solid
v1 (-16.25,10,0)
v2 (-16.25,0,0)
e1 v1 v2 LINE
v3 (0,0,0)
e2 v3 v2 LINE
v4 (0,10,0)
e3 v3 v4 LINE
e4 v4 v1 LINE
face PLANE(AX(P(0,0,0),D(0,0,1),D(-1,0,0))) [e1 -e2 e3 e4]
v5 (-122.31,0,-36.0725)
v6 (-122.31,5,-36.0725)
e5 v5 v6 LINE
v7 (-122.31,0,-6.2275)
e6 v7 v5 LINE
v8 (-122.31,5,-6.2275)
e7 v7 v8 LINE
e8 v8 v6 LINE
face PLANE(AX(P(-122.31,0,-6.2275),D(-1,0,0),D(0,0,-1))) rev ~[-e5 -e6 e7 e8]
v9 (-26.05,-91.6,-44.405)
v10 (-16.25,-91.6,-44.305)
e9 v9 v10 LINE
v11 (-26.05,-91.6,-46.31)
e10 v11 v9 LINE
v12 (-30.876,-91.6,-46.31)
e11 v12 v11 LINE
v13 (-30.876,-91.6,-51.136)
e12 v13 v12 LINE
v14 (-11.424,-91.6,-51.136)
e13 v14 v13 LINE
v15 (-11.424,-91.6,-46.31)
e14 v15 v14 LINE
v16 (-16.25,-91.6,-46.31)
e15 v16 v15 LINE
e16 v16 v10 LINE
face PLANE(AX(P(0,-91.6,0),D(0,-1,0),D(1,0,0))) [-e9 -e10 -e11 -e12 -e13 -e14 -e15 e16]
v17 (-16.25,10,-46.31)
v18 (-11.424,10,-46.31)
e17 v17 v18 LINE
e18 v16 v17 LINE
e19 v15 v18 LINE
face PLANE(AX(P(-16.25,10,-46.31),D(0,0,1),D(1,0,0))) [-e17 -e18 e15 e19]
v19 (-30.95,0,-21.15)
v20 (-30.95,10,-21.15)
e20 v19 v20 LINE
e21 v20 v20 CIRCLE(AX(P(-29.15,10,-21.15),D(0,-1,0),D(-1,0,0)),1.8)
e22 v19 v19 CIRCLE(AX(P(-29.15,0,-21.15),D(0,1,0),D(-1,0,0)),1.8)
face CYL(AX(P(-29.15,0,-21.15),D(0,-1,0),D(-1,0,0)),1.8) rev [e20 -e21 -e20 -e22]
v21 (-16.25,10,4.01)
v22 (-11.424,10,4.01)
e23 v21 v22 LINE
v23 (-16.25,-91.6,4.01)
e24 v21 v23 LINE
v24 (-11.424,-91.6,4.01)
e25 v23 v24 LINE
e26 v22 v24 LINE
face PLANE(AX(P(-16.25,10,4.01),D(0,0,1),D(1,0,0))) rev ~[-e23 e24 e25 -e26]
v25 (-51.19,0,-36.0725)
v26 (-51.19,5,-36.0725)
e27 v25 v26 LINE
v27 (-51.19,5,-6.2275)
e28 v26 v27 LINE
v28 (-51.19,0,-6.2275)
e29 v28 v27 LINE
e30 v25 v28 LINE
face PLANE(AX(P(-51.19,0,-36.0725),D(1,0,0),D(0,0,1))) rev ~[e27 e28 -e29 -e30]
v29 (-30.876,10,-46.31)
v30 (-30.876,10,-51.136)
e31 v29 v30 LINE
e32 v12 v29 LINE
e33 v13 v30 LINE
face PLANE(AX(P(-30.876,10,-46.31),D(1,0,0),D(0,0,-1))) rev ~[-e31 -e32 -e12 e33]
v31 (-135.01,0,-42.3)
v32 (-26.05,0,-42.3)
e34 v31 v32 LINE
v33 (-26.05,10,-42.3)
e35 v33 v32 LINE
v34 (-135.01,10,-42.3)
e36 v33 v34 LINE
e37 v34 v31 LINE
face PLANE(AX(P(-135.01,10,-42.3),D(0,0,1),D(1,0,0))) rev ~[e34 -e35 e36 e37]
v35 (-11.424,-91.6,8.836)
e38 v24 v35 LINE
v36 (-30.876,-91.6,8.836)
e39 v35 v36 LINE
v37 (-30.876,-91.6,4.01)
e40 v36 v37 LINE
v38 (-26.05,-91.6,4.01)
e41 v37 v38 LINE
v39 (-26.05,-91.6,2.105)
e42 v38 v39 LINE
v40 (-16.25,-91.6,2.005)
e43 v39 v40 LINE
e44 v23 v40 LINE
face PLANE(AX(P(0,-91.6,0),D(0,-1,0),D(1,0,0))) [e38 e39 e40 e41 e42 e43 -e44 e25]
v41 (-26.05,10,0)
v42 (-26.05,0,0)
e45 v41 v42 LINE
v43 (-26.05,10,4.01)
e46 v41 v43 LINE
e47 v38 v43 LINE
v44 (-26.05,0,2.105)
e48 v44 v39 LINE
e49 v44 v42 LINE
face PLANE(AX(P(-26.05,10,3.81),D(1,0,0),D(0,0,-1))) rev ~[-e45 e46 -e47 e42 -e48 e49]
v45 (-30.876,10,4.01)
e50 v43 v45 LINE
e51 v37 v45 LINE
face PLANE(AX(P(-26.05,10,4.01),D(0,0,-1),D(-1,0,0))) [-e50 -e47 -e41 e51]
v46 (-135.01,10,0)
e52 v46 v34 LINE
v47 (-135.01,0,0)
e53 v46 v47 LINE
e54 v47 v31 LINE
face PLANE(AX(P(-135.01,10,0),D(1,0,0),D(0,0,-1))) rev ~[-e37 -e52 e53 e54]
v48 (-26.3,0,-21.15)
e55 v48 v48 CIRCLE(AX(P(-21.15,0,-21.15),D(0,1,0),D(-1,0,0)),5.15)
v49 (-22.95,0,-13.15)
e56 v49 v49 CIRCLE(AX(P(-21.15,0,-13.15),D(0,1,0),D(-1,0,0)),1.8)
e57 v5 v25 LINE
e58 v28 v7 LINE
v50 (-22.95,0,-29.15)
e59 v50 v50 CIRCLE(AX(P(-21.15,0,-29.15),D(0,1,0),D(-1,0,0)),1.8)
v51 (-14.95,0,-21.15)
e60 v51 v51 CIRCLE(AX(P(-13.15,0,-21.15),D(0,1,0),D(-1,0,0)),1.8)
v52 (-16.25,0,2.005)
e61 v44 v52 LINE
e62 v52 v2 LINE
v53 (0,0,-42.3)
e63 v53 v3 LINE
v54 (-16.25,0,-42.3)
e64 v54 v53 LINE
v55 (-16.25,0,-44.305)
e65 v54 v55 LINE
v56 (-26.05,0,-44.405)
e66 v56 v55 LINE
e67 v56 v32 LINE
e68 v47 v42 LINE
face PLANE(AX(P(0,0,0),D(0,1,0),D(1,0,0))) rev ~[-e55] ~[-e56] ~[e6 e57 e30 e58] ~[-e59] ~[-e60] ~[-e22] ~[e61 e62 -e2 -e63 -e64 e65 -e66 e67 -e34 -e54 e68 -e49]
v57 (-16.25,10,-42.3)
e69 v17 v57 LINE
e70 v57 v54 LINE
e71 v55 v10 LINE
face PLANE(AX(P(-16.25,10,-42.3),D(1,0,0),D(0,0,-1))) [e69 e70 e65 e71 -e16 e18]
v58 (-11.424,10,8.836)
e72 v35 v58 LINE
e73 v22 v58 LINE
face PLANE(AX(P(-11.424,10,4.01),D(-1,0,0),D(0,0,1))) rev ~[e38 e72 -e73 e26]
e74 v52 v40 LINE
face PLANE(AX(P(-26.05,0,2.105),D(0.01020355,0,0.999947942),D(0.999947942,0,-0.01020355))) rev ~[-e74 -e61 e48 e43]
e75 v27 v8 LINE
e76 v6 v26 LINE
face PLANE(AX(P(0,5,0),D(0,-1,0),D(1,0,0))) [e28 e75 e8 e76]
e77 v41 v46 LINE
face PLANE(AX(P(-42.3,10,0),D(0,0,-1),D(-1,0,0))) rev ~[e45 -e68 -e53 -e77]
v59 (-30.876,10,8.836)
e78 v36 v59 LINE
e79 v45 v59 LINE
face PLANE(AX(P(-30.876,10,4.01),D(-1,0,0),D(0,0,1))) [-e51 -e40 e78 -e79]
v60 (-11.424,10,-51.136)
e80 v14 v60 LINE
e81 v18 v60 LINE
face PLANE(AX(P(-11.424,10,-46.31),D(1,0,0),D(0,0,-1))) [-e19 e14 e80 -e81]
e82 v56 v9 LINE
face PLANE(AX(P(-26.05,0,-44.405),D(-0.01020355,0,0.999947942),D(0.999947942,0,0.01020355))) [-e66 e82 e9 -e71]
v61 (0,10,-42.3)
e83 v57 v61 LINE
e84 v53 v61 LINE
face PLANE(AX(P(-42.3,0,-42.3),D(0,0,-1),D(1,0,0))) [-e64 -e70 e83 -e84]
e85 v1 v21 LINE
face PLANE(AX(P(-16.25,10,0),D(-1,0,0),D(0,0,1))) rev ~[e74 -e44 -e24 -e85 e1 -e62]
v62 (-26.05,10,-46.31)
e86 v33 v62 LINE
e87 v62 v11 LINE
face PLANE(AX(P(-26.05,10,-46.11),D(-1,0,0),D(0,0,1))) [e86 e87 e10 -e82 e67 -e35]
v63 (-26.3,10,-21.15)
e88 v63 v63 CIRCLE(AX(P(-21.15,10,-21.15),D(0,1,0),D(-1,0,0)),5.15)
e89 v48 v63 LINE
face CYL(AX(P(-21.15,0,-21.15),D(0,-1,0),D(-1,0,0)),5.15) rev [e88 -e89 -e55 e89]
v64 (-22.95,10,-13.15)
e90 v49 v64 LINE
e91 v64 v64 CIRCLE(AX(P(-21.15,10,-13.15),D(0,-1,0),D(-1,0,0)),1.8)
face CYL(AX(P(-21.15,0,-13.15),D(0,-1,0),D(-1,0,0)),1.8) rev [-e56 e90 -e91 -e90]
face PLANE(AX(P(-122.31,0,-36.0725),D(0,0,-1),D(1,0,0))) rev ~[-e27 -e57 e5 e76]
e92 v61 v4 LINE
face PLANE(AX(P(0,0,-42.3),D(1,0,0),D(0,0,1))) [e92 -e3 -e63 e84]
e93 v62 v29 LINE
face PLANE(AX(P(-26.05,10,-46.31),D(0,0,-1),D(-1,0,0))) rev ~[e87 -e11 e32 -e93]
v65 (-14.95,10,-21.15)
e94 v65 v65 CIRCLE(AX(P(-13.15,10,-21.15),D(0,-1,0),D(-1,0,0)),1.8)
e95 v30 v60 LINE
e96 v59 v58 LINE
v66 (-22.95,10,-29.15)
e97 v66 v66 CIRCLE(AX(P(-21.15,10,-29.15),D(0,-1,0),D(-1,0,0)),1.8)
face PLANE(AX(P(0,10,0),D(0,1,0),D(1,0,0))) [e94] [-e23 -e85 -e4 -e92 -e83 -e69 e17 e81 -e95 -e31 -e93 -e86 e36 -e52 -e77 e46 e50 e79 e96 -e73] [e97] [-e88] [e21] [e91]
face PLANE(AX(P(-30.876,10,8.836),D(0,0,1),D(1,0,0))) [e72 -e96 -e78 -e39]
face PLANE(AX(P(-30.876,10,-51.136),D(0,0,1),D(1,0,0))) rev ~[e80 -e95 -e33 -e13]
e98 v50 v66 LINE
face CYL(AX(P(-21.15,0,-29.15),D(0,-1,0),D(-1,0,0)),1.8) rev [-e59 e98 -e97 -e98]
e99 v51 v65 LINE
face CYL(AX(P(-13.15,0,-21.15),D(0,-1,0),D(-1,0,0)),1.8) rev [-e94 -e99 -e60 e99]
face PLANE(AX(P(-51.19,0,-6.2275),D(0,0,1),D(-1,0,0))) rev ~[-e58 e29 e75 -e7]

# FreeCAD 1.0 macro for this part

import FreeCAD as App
import Part
import Sketcher
Q = App.Units.Quantity


def add_polygon(sketch, points):
    """Adds a closed chain of lines whose ends are joined by coincident constraints."""
    first, n = sketch.GeometryCount, len(points)
    for a, b in zip(points, points[1:] + points[:1]):
        sketch.addGeometry(Part.LineSegment(App.Vector(*a, 0), App.Vector(*b, 0)), False)
    for i in range(n):
        sketch.addConstraint(Sketcher.Constraint("Coincident", first + i, 2, first + (i + 1) % n, 1))

doc = App.newDocument("Part")
body = doc.addObject("PartDesign::Body", "Body")

# Sketch on XZ plane
sketch1 = body.newObject("Sketcher::SketchObject", "Sketch")
sketch1.AttachmentSupport = (doc.getObject("XZ_Plane"), [""])
sketch1.MapMode = "FlatFace"
add_polygon(sketch1, [(-42.3, 0), (0, 0), (0, -42.3), (-42.3, -42.3)])  # lines 0-3
sketch1.addGeometry(Part.Circle(App.Vector(-29.1, -21.1, 0), App.Vector(0, 0, 1), 1.8), False)  # 4
sketch1.addGeometry(Part.Circle(App.Vector(-21.1, -13.2, 0), App.Vector(0, 0, 1), 1.8), False)  # 5
sketch1.addGeometry(Part.Circle(App.Vector(-13.2, -21.1, 0), App.Vector(0, 0, 1), 1.8), False)  # 6
sketch1.addGeometry(Part.Circle(App.Vector(-21.1, -29.1, 0), App.Vector(0, 0, 1), 1.8), False)  # 7
sketch1.addGeometry(Part.Circle(App.Vector(-21.1, -21.1, 0), App.Vector(0, 0, 1), 5.2), False)  # 8
sketch1.addConstraint(Sketcher.Constraint("Horizontal", 0))
sketch1.addConstraint(Sketcher.Constraint("Vertical", 1))
sketch1.addConstraint(Sketcher.Constraint("Horizontal", 2))
sketch1.addConstraint(Sketcher.Constraint("Vertical", 3))
sketch1.addConstraint(Sketcher.Constraint("Coincident", 0, 2, -1, 1))
sketch1.addConstraint(Sketcher.Constraint("Equal", 4, 5))
sketch1.addConstraint(Sketcher.Constraint("Equal", 5, 6))
sketch1.addConstraint(Sketcher.Constraint("Equal", 6, 7))
sketch1.addConstraint(Sketcher.Constraint("Horizontal", 4, 3, 6, 3))
sketch1.addConstraint(Sketcher.Constraint("Horizontal", 6, 3, 8, 3))
sketch1.addConstraint(Sketcher.Constraint("Vertical", 5, 3, 7, 3))
sketch1.addConstraint(Sketcher.Constraint("Vertical", 7, 3, 8, 3))
sketch1.addConstraint(Sketcher.Constraint("Equal", 2, 1))
sketch1.addConstraint(Sketcher.Constraint("Diameter", 8, Q("0.4055 in")))
sketch1.addConstraint(Sketcher.Constraint("Diameter", 4, Q("3.6 mm")))
sketch1.addConstraint(Sketcher.Constraint("DistanceX", 0, 1, 0, 2, Q("42.3 mm")))
sketch1.addConstraint(Sketcher.Constraint("DistanceX", 4, 3, 6, 3, Q("16 mm")))
sketch1.addConstraint(Sketcher.Constraint("DistanceY", 7, 3, 5, 3, Q("16 mm")))
sketch1.addConstraint(Sketcher.Constraint("DistanceX", 4, 3, -1, 1, Q("29.15 mm")))
sketch1.addConstraint(Sketcher.Constraint("DistanceY", 4, 3, -1, 1, Q("21.15 mm")))
sketch1.addConstraint(Sketcher.Constraint("DistanceX", 5, 3, -1, 1, Q("21.15 mm")))
sketch1.addConstraint(Sketcher.Constraint("DistanceY", 5, 3, -1, 1, Q("13.15 mm")))
pad1 = body.newObject("PartDesign::Pad", "Pad")
pad1.Profile = sketch1
pad1.Length = Q("0.3937008 in")
pad1.Reversed = True

# Sketch on XZ plane
sketch2 = body.newObject("Sketcher::SketchObject", "Sketch001")
sketch2.AttachmentSupport = (doc.getObject("XZ_Plane"), [""])
sketch2.MapMode = "FlatFace"
sketch2.AttachmentOffset = App.Placement(App.Vector(0, 0, -0.3937008 * 25.4), App.Rotation())
add_polygon(sketch2, [(-16.2, 0), (-26.1, 0), (-26.1, 4), (-30.9, 4), (-30.9, 8.8), (-11.4, 8.8), (-11.4, 4), (-16.2, 4)])  # lines 0-7
add_polygon(sketch2, [(-26.1, -42.3), (-16.2, -42.3), (-16.2, -46.3), (-11.4, -46.3), (-11.4, -51.1), (-30.9, -51.1), (-30.9, -46.3), (-26.1, -46.3)])  # lines 8-15
sketch2.addConstraint(Sketcher.Constraint("Horizontal", 0))
sketch2.addConstraint(Sketcher.Constraint("Vertical", 1))
sketch2.addConstraint(Sketcher.Constraint("Horizontal", 2))
sketch2.addConstraint(Sketcher.Constraint("Vertical", 3))
sketch2.addConstraint(Sketcher.Constraint("Horizontal", 4))
sketch2.addConstraint(Sketcher.Constraint("Vertical", 5))
sketch2.addConstraint(Sketcher.Constraint("Horizontal", 6))
sketch2.addConstraint(Sketcher.Constraint("Vertical", 7))
sketch2.addConstraint(Sketcher.Constraint("Horizontal", 8))
sketch2.addConstraint(Sketcher.Constraint("Vertical", 9))
sketch2.addConstraint(Sketcher.Constraint("Horizontal", 10))
sketch2.addConstraint(Sketcher.Constraint("Vertical", 11))
sketch2.addConstraint(Sketcher.Constraint("Horizontal", 12))
sketch2.addConstraint(Sketcher.Constraint("Vertical", 13))
sketch2.addConstraint(Sketcher.Constraint("Horizontal", 14))
sketch2.addConstraint(Sketcher.Constraint("Vertical", 15))
sketch2.addConstraint(Sketcher.Constraint("PointOnObject", 0, 2, -1))
sketch2.addConstraint(Sketcher.Constraint("Horizontal", 2, 2, 5, 2))
sketch2.addConstraint(Sketcher.Constraint("Horizontal", 10, 2, 13, 2))
sketch2.addConstraint(Sketcher.Constraint("Vertical", 7, 2, 8, 2))
sketch2.addConstraint(Sketcher.Constraint("Vertical", 5, 2, 10, 2))
sketch2.addConstraint(Sketcher.Constraint("Vertical", 3, 2, 12, 2))
sketch2.addConstraint(Sketcher.Constraint("Vertical", 1, 2, 14, 2))
sketch2.addConstraint(Sketcher.Constraint("Equal", 2, 6))
sketch2.addConstraint(Sketcher.Constraint("Equal", 14, 3))
sketch2.addConstraint(Sketcher.Constraint("Equal", 7, 9))
sketch2.addConstraint(Sketcher.Constraint("Equal", 5, 11))
sketch2.addConstraint(Sketcher.Constraint("DistanceX", 2, 2, 2, 1, Q("0.19 in")))
sketch2.addConstraint(Sketcher.Constraint("DistanceX", 0, 2, 0, 1, Q("9.8 mm")))
sketch2.addConstraint(Sketcher.Constraint("DistanceY", 1, 1, 1, 2, Q("4.01 mm")))
sketch2.addConstraint(Sketcher.Constraint("DistanceX", 0, 2, -1, 1, Q("1.0256 in")))
sketch2.addConstraint(Sketcher.Constraint("DistanceY", 9, 2, 6, 2, Q("1.9811 in")))
pad2 = body.newObject("PartDesign::Pad", "Pad001")
pad2.Profile = sketch2
pad2.Length = Q("0.3937008 in")

# Sketch on XZ plane
sketch3 = body.newObject("Sketcher::SketchObject", "Sketch002")
sketch3.AttachmentSupport = (doc.getObject("XZ_Plane"), [""])
sketch3.MapMode = "FlatFace"
add_polygon(sketch3, [(-16.2, 2), (-16.2, 4), (-11.4, 4), (-11.4, 8.8), (-30.9, 8.8), (-30.9, 4), (-26.1, 4), (-26.1, 2.1)])  # lines 0-7
add_polygon(sketch3, [(-11.4, -46.3), (-16.2, -46.3), (-16.2, -44.3), (-26.1, -44.4), (-26.1, -46.3), (-30.9, -46.3), (-30.9, -51.1), (-11.4, -51.1)])  # lines 8-15
sketch3.addConstraint(Sketcher.Constraint("Vertical", 0))
sketch3.addConstraint(Sketcher.Constraint("Horizontal", 1))
sketch3.addConstraint(Sketcher.Constraint("Vertical", 2))
sketch3.addConstraint(Sketcher.Constraint("Horizontal", 3))
sketch3.addConstraint(Sketcher.Constraint("Vertical", 4))
sketch3.addConstraint(Sketcher.Constraint("Horizontal", 5))
sketch3.addConstraint(Sketcher.Constraint("Vertical", 6))
sketch3.addConstraint(Sketcher.Constraint("Horizontal", 8))
sketch3.addConstraint(Sketcher.Constraint("Vertical", 9))
sketch3.addConstraint(Sketcher.Constraint("Vertical", 11))
sketch3.addConstraint(Sketcher.Constraint("Horizontal", 12))
sketch3.addConstraint(Sketcher.Constraint("Vertical", 13))
sketch3.addConstraint(Sketcher.Constraint("Horizontal", 14))
sketch3.addConstraint(Sketcher.Constraint("Vertical", 15))
sketch3.addConstraint(Sketcher.Constraint("Horizontal", 1, 2, 4, 2))
sketch3.addConstraint(Sketcher.Constraint("Horizontal", 8, 2, 11, 2))
sketch3.addConstraint(Sketcher.Constraint("Vertical", 7, 2, 8, 2))
sketch3.addConstraint(Sketcher.Constraint("Vertical", 6, 2, 10, 2))
sketch3.addConstraint(Sketcher.Constraint("Vertical", 4, 2, 12, 2))
sketch3.addConstraint(Sketcher.Constraint("Vertical", 2, 2, 14, 2))
sketch3.addConstraint(Sketcher.Constraint("Equal", 1, 5))
sketch3.addConstraint(Sketcher.Constraint("Equal", 12, 2))
sketch3.addConstraint(Sketcher.Constraint("Equal", 0, 9))
sketch3.addConstraint(Sketcher.Constraint("Equal", 6, 11))
sketch3.addConstraint(Sketcher.Constraint("Equal", 4, 13))
sketch3.addConstraint(Sketcher.Constraint("DistanceY", 6, 2, 6, 1, Q("0.075 in")))
sketch3.addConstraint(Sketcher.Constraint("DistanceX", 1, 1, 1, 2, Q("0.19 in")))
sketch3.addConstraint(Sketcher.Constraint("DistanceX", 3, 2, 3, 1, Q("19.452 mm")))
sketch3.addConstraint(Sketcher.Constraint("DistanceY", 0, 1, 0, 2, Q("2.005 mm")))
sketch3.addConstraint(Sketcher.Constraint("DistanceX", 3, 2, -1, 1, Q("1.2156 in")))
sketch3.addConstraint(Sketcher.Constraint("DistanceY", 9, 2, -1, 1, Q("1.7443 in")))
sketch3.addConstraint(Sketcher.Constraint("DistanceY", 8, 2, 6, 2, Q("1.9061 in")))
pad3 = body.newObject("PartDesign::Pad", "Pad002")
pad3.Profile = sketch3
pad3.Length = Q("3.6062992 in")

# Sketch on XZ plane
sketch4 = body.newObject("Sketcher::SketchObject", "Sketch003")
sketch4.AttachmentSupport = (doc.getObject("XZ_Plane"), [""])
sketch4.MapMode = "FlatFace"
sketch4.AttachmentOffset = App.Placement(App.Vector(0, 0, -0.3937008 * 25.4), App.Rotation())
add_polygon(sketch4, [(-135, 0), (-42, 0), (-42, -42), (-135, -42)])  # lines 0-3
sketch4.addConstraint(Sketcher.Constraint("Horizontal", 0))
sketch4.addConstraint(Sketcher.Constraint("Vertical", 1))
sketch4.addConstraint(Sketcher.Constraint("Horizontal", 2))
sketch4.addConstraint(Sketcher.Constraint("Vertical", 3))
sketch4.addConstraint(Sketcher.Constraint("PointOnObject", 0, 2, -1))
sketch4.addConstraint(Sketcher.Constraint("DistanceX", 0, 1, 0, 2, Q("3.65 in")))
sketch4.addConstraint(Sketcher.Constraint("DistanceY", 1, 2, 1, 1, Q("42.3 mm")))
sketch4.addConstraint(Sketcher.Constraint("DistanceX", 0, 2, -1, 1, Q("42.3 mm")))
pad4 = body.newObject("PartDesign::Pad", "Pad003")
pad4.Profile = sketch4
pad4.Length = Q("0.3937008 in")

# Sketch on XZ plane
sketch5 = body.newObject("Sketcher::SketchObject", "Sketch004")
sketch5.AttachmentSupport = (doc.getObject("XZ_Plane"), [""])
sketch5.MapMode = "FlatFace"
add_polygon(sketch5, [(-122, -6), (-122, -36), (-51, -36), (-51, -6)])  # lines 0-3
sketch5.addConstraint(Sketcher.Constraint("Vertical", 0))
sketch5.addConstraint(Sketcher.Constraint("Horizontal", 1))
sketch5.addConstraint(Sketcher.Constraint("Vertical", 2))
sketch5.addConstraint(Sketcher.Constraint("Horizontal", 3))
sketch5.addConstraint(Sketcher.Constraint("DistanceX", 1, 1, 1, 2, Q("2.8 in")))
sketch5.addConstraint(Sketcher.Constraint("DistanceY", 0, 2, 0, 1, Q("1.175 in")))
sketch5.addConstraint(Sketcher.Constraint("DistanceX", 0, 2, -1, 1, Q("122.31 mm")))
sketch5.addConstraint(Sketcher.Constraint("DistanceY", 0, 2, -1, 1, Q("36.0725 mm")))
pocket1 = body.newObject("PartDesign::Pocket", "Pocket")
pocket1.Profile = sketch5
pocket1.Length = 5

doc.recompute()
